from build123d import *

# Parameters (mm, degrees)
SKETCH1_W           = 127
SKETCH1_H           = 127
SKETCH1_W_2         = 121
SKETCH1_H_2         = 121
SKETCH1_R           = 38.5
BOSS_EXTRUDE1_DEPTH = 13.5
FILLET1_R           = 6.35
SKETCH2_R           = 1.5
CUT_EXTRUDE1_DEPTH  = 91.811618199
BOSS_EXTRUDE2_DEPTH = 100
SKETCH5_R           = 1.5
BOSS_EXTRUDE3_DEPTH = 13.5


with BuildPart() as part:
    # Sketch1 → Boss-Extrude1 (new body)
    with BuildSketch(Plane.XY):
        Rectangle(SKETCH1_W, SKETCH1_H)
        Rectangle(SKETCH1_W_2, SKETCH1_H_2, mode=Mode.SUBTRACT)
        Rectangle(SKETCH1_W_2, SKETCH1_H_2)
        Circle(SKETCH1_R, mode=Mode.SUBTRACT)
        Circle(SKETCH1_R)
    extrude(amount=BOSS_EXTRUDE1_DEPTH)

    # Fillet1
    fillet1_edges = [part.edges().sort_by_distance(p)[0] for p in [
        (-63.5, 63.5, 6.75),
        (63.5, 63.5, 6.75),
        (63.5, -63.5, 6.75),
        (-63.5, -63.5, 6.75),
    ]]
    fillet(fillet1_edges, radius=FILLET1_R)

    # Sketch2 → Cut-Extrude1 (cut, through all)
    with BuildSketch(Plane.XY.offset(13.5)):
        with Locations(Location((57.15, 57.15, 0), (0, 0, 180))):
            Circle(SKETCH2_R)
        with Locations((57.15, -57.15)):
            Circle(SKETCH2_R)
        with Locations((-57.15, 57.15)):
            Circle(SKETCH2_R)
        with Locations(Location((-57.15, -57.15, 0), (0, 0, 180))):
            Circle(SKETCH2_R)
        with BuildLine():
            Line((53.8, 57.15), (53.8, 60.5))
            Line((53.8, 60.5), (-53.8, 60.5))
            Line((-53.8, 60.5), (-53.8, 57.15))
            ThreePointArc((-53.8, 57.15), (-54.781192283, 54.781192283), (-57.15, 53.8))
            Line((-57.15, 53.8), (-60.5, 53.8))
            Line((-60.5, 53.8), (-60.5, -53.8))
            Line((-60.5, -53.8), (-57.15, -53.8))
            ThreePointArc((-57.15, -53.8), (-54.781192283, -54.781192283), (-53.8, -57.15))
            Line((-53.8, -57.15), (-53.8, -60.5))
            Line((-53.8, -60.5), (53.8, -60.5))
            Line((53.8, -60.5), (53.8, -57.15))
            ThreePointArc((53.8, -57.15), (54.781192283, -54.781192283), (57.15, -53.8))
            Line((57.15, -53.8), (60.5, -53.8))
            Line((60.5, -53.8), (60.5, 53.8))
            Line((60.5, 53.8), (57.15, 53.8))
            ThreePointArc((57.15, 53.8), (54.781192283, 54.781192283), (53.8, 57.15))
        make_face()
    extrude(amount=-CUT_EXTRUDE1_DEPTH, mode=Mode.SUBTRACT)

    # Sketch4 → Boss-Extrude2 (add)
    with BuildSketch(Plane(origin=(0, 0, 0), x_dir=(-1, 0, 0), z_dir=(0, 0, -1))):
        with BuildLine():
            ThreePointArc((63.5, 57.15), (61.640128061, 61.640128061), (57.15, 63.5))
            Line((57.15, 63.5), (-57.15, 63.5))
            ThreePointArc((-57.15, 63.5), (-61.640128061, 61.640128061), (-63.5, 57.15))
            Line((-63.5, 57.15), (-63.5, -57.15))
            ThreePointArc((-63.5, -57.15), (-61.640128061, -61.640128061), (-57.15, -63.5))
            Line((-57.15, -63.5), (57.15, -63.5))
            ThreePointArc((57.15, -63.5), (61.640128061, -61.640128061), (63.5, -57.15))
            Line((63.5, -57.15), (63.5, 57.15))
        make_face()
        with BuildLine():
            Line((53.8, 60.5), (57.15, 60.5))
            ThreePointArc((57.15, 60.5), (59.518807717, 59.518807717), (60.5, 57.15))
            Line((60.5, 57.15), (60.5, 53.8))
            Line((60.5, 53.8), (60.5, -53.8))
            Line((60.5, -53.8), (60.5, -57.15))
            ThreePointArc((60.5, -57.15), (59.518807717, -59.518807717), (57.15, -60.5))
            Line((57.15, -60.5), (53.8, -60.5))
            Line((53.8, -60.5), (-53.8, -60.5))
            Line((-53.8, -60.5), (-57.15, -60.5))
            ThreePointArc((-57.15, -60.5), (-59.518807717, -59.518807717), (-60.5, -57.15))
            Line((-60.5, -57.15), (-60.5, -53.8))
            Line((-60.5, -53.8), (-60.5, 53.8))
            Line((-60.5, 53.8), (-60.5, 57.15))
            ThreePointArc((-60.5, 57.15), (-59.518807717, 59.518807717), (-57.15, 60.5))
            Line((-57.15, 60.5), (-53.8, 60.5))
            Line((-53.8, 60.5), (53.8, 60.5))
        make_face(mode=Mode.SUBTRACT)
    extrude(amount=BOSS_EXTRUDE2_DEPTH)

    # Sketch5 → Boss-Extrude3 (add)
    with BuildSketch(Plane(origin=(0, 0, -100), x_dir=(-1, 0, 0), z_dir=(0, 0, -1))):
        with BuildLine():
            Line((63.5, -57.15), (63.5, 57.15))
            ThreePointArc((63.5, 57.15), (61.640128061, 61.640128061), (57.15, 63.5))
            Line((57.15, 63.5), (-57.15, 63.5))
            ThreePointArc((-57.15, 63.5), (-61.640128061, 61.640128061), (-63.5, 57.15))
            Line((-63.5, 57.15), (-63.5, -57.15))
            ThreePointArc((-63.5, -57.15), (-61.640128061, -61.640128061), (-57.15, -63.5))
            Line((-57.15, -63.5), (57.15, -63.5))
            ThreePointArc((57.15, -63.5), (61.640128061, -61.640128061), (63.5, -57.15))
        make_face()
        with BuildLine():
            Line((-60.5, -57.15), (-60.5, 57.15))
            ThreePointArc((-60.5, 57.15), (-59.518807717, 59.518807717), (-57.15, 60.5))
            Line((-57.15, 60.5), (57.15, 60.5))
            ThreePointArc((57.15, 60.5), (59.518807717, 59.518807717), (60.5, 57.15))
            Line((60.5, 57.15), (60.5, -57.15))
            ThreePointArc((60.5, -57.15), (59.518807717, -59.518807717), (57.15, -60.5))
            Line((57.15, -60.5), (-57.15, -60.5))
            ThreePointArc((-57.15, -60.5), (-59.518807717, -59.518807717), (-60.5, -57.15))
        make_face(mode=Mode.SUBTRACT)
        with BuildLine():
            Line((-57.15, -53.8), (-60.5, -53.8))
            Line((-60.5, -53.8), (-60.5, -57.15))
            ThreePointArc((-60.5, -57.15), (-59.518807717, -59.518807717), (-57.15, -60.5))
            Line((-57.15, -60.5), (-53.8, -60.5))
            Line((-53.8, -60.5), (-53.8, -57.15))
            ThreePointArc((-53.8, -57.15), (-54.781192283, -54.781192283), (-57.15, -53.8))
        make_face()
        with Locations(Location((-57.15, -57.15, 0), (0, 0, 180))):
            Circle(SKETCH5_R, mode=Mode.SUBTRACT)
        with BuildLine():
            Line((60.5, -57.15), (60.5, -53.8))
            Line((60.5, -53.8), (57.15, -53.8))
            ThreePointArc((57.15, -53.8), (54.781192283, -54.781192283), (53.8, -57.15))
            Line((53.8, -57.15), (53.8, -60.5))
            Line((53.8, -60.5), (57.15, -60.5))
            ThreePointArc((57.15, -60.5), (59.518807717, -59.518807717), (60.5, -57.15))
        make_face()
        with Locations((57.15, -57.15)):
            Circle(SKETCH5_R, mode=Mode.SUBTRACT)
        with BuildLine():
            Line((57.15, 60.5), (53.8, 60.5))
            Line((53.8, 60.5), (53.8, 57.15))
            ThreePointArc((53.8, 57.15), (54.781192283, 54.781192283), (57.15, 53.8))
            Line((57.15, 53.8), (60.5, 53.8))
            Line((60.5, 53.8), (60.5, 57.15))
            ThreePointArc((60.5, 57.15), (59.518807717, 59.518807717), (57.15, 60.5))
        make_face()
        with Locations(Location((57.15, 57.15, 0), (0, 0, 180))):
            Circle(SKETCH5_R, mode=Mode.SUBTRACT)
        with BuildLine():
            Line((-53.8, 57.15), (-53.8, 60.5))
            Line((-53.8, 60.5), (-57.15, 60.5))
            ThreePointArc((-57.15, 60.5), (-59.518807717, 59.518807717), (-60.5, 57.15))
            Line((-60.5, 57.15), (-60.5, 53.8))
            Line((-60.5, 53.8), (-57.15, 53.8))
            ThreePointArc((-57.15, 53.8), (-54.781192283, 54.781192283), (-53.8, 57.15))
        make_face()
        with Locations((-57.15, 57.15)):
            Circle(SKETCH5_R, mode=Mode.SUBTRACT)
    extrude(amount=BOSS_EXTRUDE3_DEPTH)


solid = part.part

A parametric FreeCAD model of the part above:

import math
import FreeCAD as App
import Part
import Sketcher
from FreeCAD import Vector


def edges_at(feature, points):
    """Names of the edges that pass closest to the given points."""
    edges = feature.Shape.Edges
    near = lambda p: min(range(len(edges)), key=lambda i: edges[i].distToShape(Part.Vertex(*p))[0])
    return sorted({f"Edge{near(p) + 1}" for p in points})


def add_polygon(sketch, points):
    """Adds a closed chain of lines whose ends are joined by coincident constraints."""
    first, n = sketch.GeometryCount, len(points)
    for a, b in zip(points, points[1:] + points[:1]):
        sketch.addGeometry(Part.LineSegment(App.Vector(*a, 0), App.Vector(*b, 0)), False)
    for i in range(n):
        sketch.addConstraint(Sketcher.Constraint("Coincident", first + i, 2, first + (i + 1) % n, 1))

doc = App.newDocument("Part")
body = doc.addObject("PartDesign::Body", "Body")

# Sketch on XY plane
sketch1 = doc.addObject("Sketcher::SketchObject", "Sketch")
body.addObject(sketch1)
sketch1.AttachmentSupport = (doc.XY_Plane, [""])
sketch1.MapMode = "FlatFace"
add_polygon(sketch1, [(-63.5, 63.5), (-63.5, -63.5), (63.5, -63.5), (63.5, 63.5)])  # lines 0-3
sketch1.addConstraint([
    Sketcher.Constraint("Vertical", 0),
    Sketcher.Constraint("Horizontal", 1),
    Sketcher.Constraint("Vertical", 2),
    Sketcher.Constraint("Horizontal", 3),
    Sketcher.Constraint("Symmetric", 0, 2, 2, 2, -1, 1),
    Sketcher.Constraint("Equal", 3, 0),
    Sketcher.Constraint("DistanceX", 1, 1, 1, 2, 127.0),
])
pad1 = doc.addObject("PartDesign::Pad", "Pad")
body.addObject(pad1)
pad1.Profile = sketch1
pad1.Length = 13.5
doc.recompute()

fillet = doc.addObject("PartDesign::Fillet", "Fillet")
body.addObject(fillet)
fillet.Base = (pad1, edges_at(pad1, [
    (-63.5, 63.5, 6.75),
    (63.5, 63.5, 6.75),
    (63.5, -63.5, 6.75),
    (-63.5, -63.5, 6.75),
]))
fillet.Radius = 6.35

# Sketch on XY plane
sketch2 = doc.addObject("Sketcher::SketchObject", "Sketch001")
body.addObject(sketch2)
sketch2.AttachmentSupport = (doc.XY_Plane, [""])
sketch2.MapMode = "FlatFace"
sketch2.AttachmentOffset = App.Placement(Vector(0, 0, 13.5), App.Rotation())
sketch2.addGeometry([
    Part.Circle(Vector(57.15, 57.15, 0), Vector(0, 0, 1), 1.5),  # 0
    Part.Circle(Vector(57.15, -57.15, 0), Vector(0, 0, 1), 1.5),  # 1
    Part.Circle(Vector(-57.15, 57.15, 0), Vector(0, 0, 1), 1.5),  # 2
    Part.Circle(Vector(-57.15, -57.15, 0), Vector(0, 0, 1), 1.5),  # 3
    Part.LineSegment(Vector(53.8, 57.15, 0), Vector(53.8, 60.5, 0)),  # 4
    Part.LineSegment(Vector(53.8, 60.5, 0), Vector(-53.8, 60.5, 0)),  # 5
    Part.LineSegment(Vector(-53.8, 60.5, 0), Vector(-53.8, 57.15, 0)),  # 6
    Part.ArcOfCircle(Part.Circle(Vector(-57.15, 57.15, 0), Vector(0, 0, 1), 3.35), math.radians(-90), math.radians(0)),  # 7
    Part.LineSegment(Vector(-57.15, 53.8, 0), Vector(-60.5, 53.8, 0)),  # 8
    Part.LineSegment(Vector(-60.5, 53.8, 0), Vector(-60.5, -53.8, 0)),  # 9
    Part.LineSegment(Vector(-60.5, -53.8, 0), Vector(-57.15, -53.8, 0)),  # 10
    Part.ArcOfCircle(Part.Circle(Vector(-57.15, -57.15, 0), Vector(0, 0, 1), 3.35), math.radians(0), math.radians(90)),  # 11
    Part.LineSegment(Vector(-53.8, -57.15, 0), Vector(-53.8, -60.5, 0)),  # 12
    Part.LineSegment(Vector(-53.8, -60.5, 0), Vector(53.8, -60.5, 0)),  # 13
    Part.LineSegment(Vector(53.8, -60.5, 0), Vector(53.8, -57.15, 0)),  # 14
    Part.ArcOfCircle(Part.Circle(Vector(57.15, -57.15, 0), Vector(0, 0, 1), 3.35), math.radians(90), math.radians(180)),  # 15
    Part.LineSegment(Vector(57.15, -53.8, 0), Vector(60.5, -53.8, 0)),  # 16
    Part.LineSegment(Vector(60.5, -53.8, 0), Vector(60.5, 53.8, 0)),  # 17
    Part.LineSegment(Vector(60.5, 53.8, 0), Vector(57.15, 53.8, 0)),  # 18
    Part.ArcOfCircle(Part.Circle(Vector(57.15, 57.15, 0), Vector(0, 0, 1), 3.35), math.radians(180), math.radians(270)),  # 19
], False)
sketch2.addConstraint([
    Sketcher.Constraint("Coincident", 4, 2, 5, 1),
    Sketcher.Constraint("Coincident", 5, 2, 6, 1),
    Sketcher.Constraint("Tangent", 6, 2, 7, 2),
    Sketcher.Constraint("Tangent", 7, 1, 8, 1),
    Sketcher.Constraint("Coincident", 8, 2, 9, 1),
    Sketcher.Constraint("Coincident", 9, 2, 10, 1),
    Sketcher.Constraint("Tangent", 10, 2, 11, 2),
    Sketcher.Constraint("Tangent", 11, 1, 12, 1),
    Sketcher.Constraint("Coincident", 12, 2, 13, 1),
    Sketcher.Constraint("Coincident", 13, 2, 14, 1),
    Sketcher.Constraint("Tangent", 14, 2, 15, 2),
    Sketcher.Constraint("Tangent", 15, 1, 16, 1),
    Sketcher.Constraint("Coincident", 16, 2, 17, 1),
    Sketcher.Constraint("Coincident", 17, 2, 18, 1),
    Sketcher.Constraint("Tangent", 18, 2, 19, 2),
    Sketcher.Constraint("Tangent", 19, 1, 4, 1),
    Sketcher.Constraint("Vertical", 4),
    Sketcher.Constraint("Horizontal", 5),
    Sketcher.Constraint("Vertical", 6),
    Sketcher.Constraint("Horizontal", 8),
    Sketcher.Constraint("Vertical", 9),
    Sketcher.Constraint("Horizontal", 10),
    Sketcher.Constraint("Vertical", 12),
    Sketcher.Constraint("Horizontal", 13),
    Sketcher.Constraint("Vertical", 14),
    Sketcher.Constraint("Horizontal", 16),
    Sketcher.Constraint("Vertical", 17),
    Sketcher.Constraint("Horizontal", 18),
    Sketcher.Constraint("Coincident", 7, 3, 2, 3),
    Sketcher.Constraint("Coincident", 11, 3, 3, 3),
    Sketcher.Constraint("Coincident", 15, 3, 1, 3),
    Sketcher.Constraint("Coincident", 19, 3, 0, 3),
    Sketcher.Constraint("Equal", 0, 1),
    Sketcher.Constraint("Equal", 1, 2),
    Sketcher.Constraint("Equal", 2, 3),
    Sketcher.Constraint("Equal", 7, 11),
    Sketcher.Constraint("Equal", 11, 15),
    Sketcher.Constraint("Equal", 15, 19),
    Sketcher.Constraint("Symmetric", 1, 3, 2, 3, -1, 1),
    Sketcher.Constraint("Symmetric", 0, 3, 3, 3, -1, 1),
    Sketcher.Constraint("Symmetric", 0, 3, 2, 3, -2),
    Sketcher.Constraint("Equal", 10, 16),
    Sketcher.Constraint("Equal", 18, 4),
    Sketcher.Constraint("Equal", 13, 9),
    Sketcher.Constraint("Equal", 6, 12),
    Sketcher.Constraint("Diameter", 0, 3.0),
    Sketcher.Constraint("Radius", 7, 3.35),
    Sketcher.Constraint("DistanceX", 5, 2, 5, 1, 107.6),
    Sketcher.Constraint("DistanceX", 8, 2, 8, 1, 3.35),
])
pocket1 = doc.addObject("PartDesign::Pocket", "Pocket")
body.addObject(pocket1)
pocket1.Profile = sketch2
pocket1.Type = "ThroughAll"

# Sketch on XY plane
sketch3 = doc.addObject("Sketcher::SketchObject", "Sketch002")
body.addObject(sketch3)
sketch3.AttachmentSupport = (doc.XY_Plane, [""])
sketch3.MapMode = "FlatFace"
sketch3.addGeometry([
    Part.ArcOfCircle(Part.Circle(Vector(-57.15, 57.15, 0), Vector(0, 0, 1), 6.35), math.radians(90), math.radians(180)),  # 0
    Part.LineSegment(Vector(-57.15, 63.5, 0), Vector(57.15, 63.5, 0)),  # 1
    Part.ArcOfCircle(Part.Circle(Vector(57.15, 57.15, 0), Vector(0, 0, 1), 6.35), math.radians(0), math.radians(90)),  # 2
    Part.LineSegment(Vector(63.5, 57.15, 0), Vector(63.5, -57.15, 0)),  # 3
    Part.ArcOfCircle(Part.Circle(Vector(57.15, -57.15, 0), Vector(0, 0, 1), 6.35), math.radians(-90), math.radians(0)),  # 4
    Part.LineSegment(Vector(57.15, -63.5, 0), Vector(-57.15, -63.5, 0)),  # 5
    Part.ArcOfCircle(Part.Circle(Vector(-57.15, -57.15, 0), Vector(0, 0, 1), 6.35), math.radians(180), math.radians(270)),  # 6
    Part.LineSegment(Vector(-63.5, -57.15, 0), Vector(-63.5, 57.15, 0)),  # 7
    Part.LineSegment(Vector(57.15, 60.5, 0), Vector(-57.15, 60.5, 0)),  # 8
    Part.ArcOfCircle(Part.Circle(Vector(-57.15, 57.15, 0), Vector(0, 0, 1), 3.35), math.radians(90), math.radians(180)),  # 9
    Part.LineSegment(Vector(-60.5, 57.15, 0), Vector(-60.5, -57.15, 0)),  # 10
    Part.ArcOfCircle(Part.Circle(Vector(-57.15, -57.15, 0), Vector(0, 0, 1), 3.35), math.radians(180), math.radians(270)),  # 11
    Part.LineSegment(Vector(-57.15, -60.5, 0), Vector(57.15, -60.5, 0)),  # 12
    Part.ArcOfCircle(Part.Circle(Vector(57.15, -57.15, 0), Vector(0, 0, 1), 3.35), math.radians(-90), math.radians(0)),  # 13
    Part.LineSegment(Vector(60.5, -57.15, 0), Vector(60.5, 57.15, 0)),  # 14
    Part.ArcOfCircle(Part.Circle(Vector(57.15, 57.15, 0), Vector(0, 0, 1), 3.35), math.radians(0), math.radians(90)),  # 15
], False)
sketch3.addConstraint([
    Sketcher.Constraint("Tangent", 0, 1, 1, 1),
    Sketcher.Constraint("Tangent", 1, 2, 2, 2),
    Sketcher.Constraint("Tangent", 2, 1, 3, 1),
    Sketcher.Constraint("Tangent", 3, 2, 4, 2),
    Sketcher.Constraint("Tangent", 4, 1, 5, 1),
    Sketcher.Constraint("Tangent", 5, 2, 6, 2),
    Sketcher.Constraint("Tangent", 6, 1, 7, 1),
    Sketcher.Constraint("Tangent", 7, 2, 0, 2),
    Sketcher.Constraint("Tangent", 8, 2, 9, 1),
    Sketcher.Constraint("Tangent", 9, 2, 10, 1),
    Sketcher.Constraint("Tangent", 10, 2, 11, 1),
    Sketcher.Constraint("Tangent", 11, 2, 12, 1),
    Sketcher.Constraint("Tangent", 12, 2, 13, 1),
    Sketcher.Constraint("Tangent", 13, 2, 14, 1),
    Sketcher.Constraint("Tangent", 14, 2, 15, 1),
    Sketcher.Constraint("Tangent", 15, 2, 8, 1),
    Sketcher.Constraint("Horizontal", 1),
    Sketcher.Constraint("Vertical", 3),
    Sketcher.Constraint("Horizontal", 5),
    Sketcher.Constraint("Vertical", 7),
    Sketcher.Constraint("Horizontal", 8),
    Sketcher.Constraint("Vertical", 10),
    Sketcher.Constraint("Horizontal", 12),
    Sketcher.Constraint("Vertical", 14),
    Sketcher.Constraint("Coincident", 9, 3, 0, 3),
    Sketcher.Constraint("Coincident", 11, 3, 6, 3),
    Sketcher.Constraint("Coincident", 13, 3, 4, 3),
    Sketcher.Constraint("Equal", 0, 2),
    Sketcher.Constraint("Equal", 2, 4),
    Sketcher.Constraint("Equal", 4, 6),
    Sketcher.Constraint("Equal", 13, 15),
    Sketcher.Constraint("Symmetric", 0, 3, 4, 3, -1, 1),
    Sketcher.Constraint("Equal", 12, 3),
    Sketcher.Constraint("Radius", 0, 6.35),
    Sketcher.Constraint("Radius", 9, 3.35),
    Sketcher.Constraint("DistanceX", 1, 1, 1, 2, 114.3),
])
pad2 = doc.addObject("PartDesign::Pad", "Pad001")
body.addObject(pad2)
pad2.Profile = sketch3
pad2.Length = 100
pad2.Reversed = True

# Sketch on XY plane
sketch4 = doc.addObject("Sketcher::SketchObject", "Sketch003")
body.addObject(sketch4)
sketch4.AttachmentSupport = (doc.XY_Plane, [""])
sketch4.MapMode = "FlatFace"
sketch4.AttachmentOffset = App.Placement(Vector(0, 0, -100), App.Rotation())
sketch4.addGeometry([
    Part.LineSegment(Vector(-63.5, -57.15, 0), Vector(-63.5, 57.15, 0)),  # 0
    Part.ArcOfCircle(Part.Circle(Vector(-57.15, 57.15, 0), Vector(0, 0, 1), 6.35), math.radians(90), math.radians(180)),  # 1
    Part.LineSegment(Vector(-57.15, 63.5, 0), Vector(57.15, 63.5, 0)),  # 2
    Part.ArcOfCircle(Part.Circle(Vector(57.15, 57.15, 0), Vector(0, 0, 1), 6.35), math.radians(0), math.radians(90)),  # 3
    Part.LineSegment(Vector(63.5, 57.15, 0), Vector(63.5, -57.15, 0)),  # 4
    Part.ArcOfCircle(Part.Circle(Vector(57.15, -57.15, 0), Vector(0, 0, 1), 6.35), math.radians(-90), math.radians(0)),  # 5
    Part.LineSegment(Vector(57.15, -63.5, 0), Vector(-57.15, -63.5, 0)),  # 6
    Part.ArcOfCircle(Part.Circle(Vector(-57.15, -57.15, 0), Vector(0, 0, 1), 6.35), math.radians(180), math.radians(270)),  # 7
    Part.Circle(Vector(57.15, -57.15, 0), Vector(0, 0, 1), 1.5),  # 8
    Part.Circle(Vector(-57.15, -57.15, 0), Vector(0, 0, 1), 1.5),  # 9
    Part.Circle(Vector(57.15, 57.15, 0), Vector(0, 0, 1), 1.5),  # 10
    Part.LineSegment(Vector(-53.8, -60.5, 0), Vector(53.8, -60.5, 0)),  # 11
    Part.LineSegment(Vector(53.8, -60.5, 0), Vector(53.8, -57.15, 0)),  # 12
    Part.ArcOfCircle(Part.Circle(Vector(57.15, -57.15, 0), Vector(0, 0, 1), 3.35), math.radians(90), math.radians(180)),  # 13
    Part.LineSegment(Vector(57.15, -53.8, 0), Vector(60.5, -53.8, 0)),  # 14
    Part.LineSegment(Vector(60.5, -53.8, 0), Vector(60.5, 53.8, 0)),  # 15
    Part.LineSegment(Vector(60.5, 53.8, 0), Vector(57.15, 53.8, 0)),  # 16
    Part.ArcOfCircle(Part.Circle(Vector(57.15, 57.15, 0), Vector(0, 0, 1), 3.35), math.radians(180), math.radians(270)),  # 17
    Part.LineSegment(Vector(53.8, 57.15, 0), Vector(53.8, 60.5, 0)),  # 18
    Part.LineSegment(Vector(53.8, 60.5, 0), Vector(-53.8, 60.5, 0)),  # 19
    Part.LineSegment(Vector(-53.8, 60.5, 0), Vector(-53.8, 57.15, 0)),  # 20
    Part.ArcOfCircle(Part.Circle(Vector(-57.15, 57.15, 0), Vector(0, 0, 1), 3.35), math.radians(-90), math.radians(0)),  # 21
    Part.LineSegment(Vector(-57.15, 53.8, 0), Vector(-60.5, 53.8, 0)),  # 22
    Part.LineSegment(Vector(-60.5, 53.8, 0), Vector(-60.5, -53.8, 0)),  # 23
    Part.LineSegment(Vector(-60.5, -53.8, 0), Vector(-57.15, -53.8, 0)),  # 24
    Part.ArcOfCircle(Part.Circle(Vector(-57.15, -57.15, 0), Vector(0, 0, 1), 3.35), math.radians(0), math.radians(90)),  # 25
    Part.LineSegment(Vector(-53.8, -57.15, 0), Vector(-53.8, -60.5, 0)),  # 26
    Part.Circle(Vector(-57.15, 57.15, 0), Vector(0, 0, 1), 1.5),  # 27
], False)
sketch4.addConstraint([
    Sketcher.Constraint("Tangent", 0, 2, 1, 2),
    Sketcher.Constraint("Tangent", 1, 1, 2, 1),
    Sketcher.Constraint("Tangent", 2, 2, 3, 2),
    Sketcher.Constraint("Tangent", 3, 1, 4, 1),
    Sketcher.Constraint("Tangent", 4, 2, 5, 2),
    Sketcher.Constraint("Tangent", 5, 1, 6, 1),
    Sketcher.Constraint("Tangent", 6, 2, 7, 2),
    Sketcher.Constraint("Tangent", 7, 1, 0, 1),
    Sketcher.Constraint("Coincident", 11, 2, 12, 1),
    Sketcher.Constraint("Tangent", 12, 2, 13, 2),
    Sketcher.Constraint("Tangent", 13, 1, 14, 1),
    Sketcher.Constraint("Coincident", 14, 2, 15, 1),
    Sketcher.Constraint("Coincident", 15, 2, 16, 1),
    Sketcher.Constraint("Tangent", 16, 2, 17, 2),
    Sketcher.Constraint("Tangent", 17, 1, 18, 1),
    Sketcher.Constraint("Coincident", 18, 2, 19, 1),
    Sketcher.Constraint("Coincident", 19, 2, 20, 1),
    Sketcher.Constraint("Tangent", 20, 2, 21, 2),
    Sketcher.Constraint("Tangent", 21, 1, 22, 1),
    Sketcher.Constraint("Coincident", 22, 2, 23, 1),
    Sketcher.Constraint("Coincident", 23, 2, 24, 1),
    Sketcher.Constraint("Tangent", 24, 2, 25, 2),
    Sketcher.Constraint("Tangent", 25, 1, 26, 1),
    Sketcher.Constraint("Coincident", 26, 2, 11, 1),
    Sketcher.Constraint("Vertical", 0),
    Sketcher.Constraint("Horizontal", 2),
    Sketcher.Constraint("Vertical", 4),
    Sketcher.Constraint("Horizontal", 6),
    Sketcher.Constraint("Horizontal", 11),
    Sketcher.Constraint("Vertical", 12),
    Sketcher.Constraint("Horizontal", 14),
    Sketcher.Constraint("Vertical", 15),
    Sketcher.Constraint("Horizontal", 16),
    Sketcher.Constraint("Vertical", 18),
    Sketcher.Constraint("Horizontal", 19),
    Sketcher.Constraint("Vertical", 20),
    Sketcher.Constraint("Horizontal", 22),
    Sketcher.Constraint("Vertical", 23),
    Sketcher.Constraint("Horizontal", 24),
    Sketcher.Constraint("Vertical", 26),
    Sketcher.Constraint("Coincident", 8, 3, 5, 3),
    Sketcher.Constraint("Coincident", 9, 3, 7, 3),
    Sketcher.Constraint("Coincident", 10, 3, 3, 3),
    Sketcher.Constraint("Coincident", 13, 3, 5, 3),
    Sketcher.Constraint("Coincident", 17, 3, 3, 3),
    Sketcher.Constraint("Coincident", 21, 3, 1, 3),
    Sketcher.Constraint("Coincident", 25, 3, 7, 3),
    Sketcher.Constraint("Coincident", 27, 3, 1, 3),
    Sketcher.Constraint("Equal", 1, 3),
    Sketcher.Constraint("Equal", 3, 5),
    Sketcher.Constraint("Equal", 5, 7),
    Sketcher.Constraint("Equal", 8, 9),
    Sketcher.Constraint("Equal", 9, 10),
    Sketcher.Constraint("Equal", 13, 17),
    Sketcher.Constraint("Equal", 17, 21),
    Sketcher.Constraint("Equal", 21, 25),
    Sketcher.Constraint("Equal", 10, 27),
    Sketcher.Constraint("Symmetric", 1, 3, 5, 3, -1, 1),
    Sketcher.Constraint("Equal", 16, 22),
    Sketcher.Constraint("Equal", 6, 0),
    Sketcher.Constraint("Equal", 24, 12),
    Sketcher.Constraint("Equal", 12, 18),
    Sketcher.Constraint("Diameter", 8, 3.0),
    Sketcher.Constraint("Radius", 1, 6.35),
    Sketcher.Constraint("Radius", 13, 3.35),
    Sketcher.Constraint("DistanceX", 2, 1, 2, 2, 114.3),
    Sketcher.Constraint("DistanceY", 5, 1, 11, 2, 3.0),
])
pad3 = doc.addObject("PartDesign::Pad", "Pad002")
body.addObject(pad3)
pad3.Profile = sketch4
pad3.Length = 13.5
pad3.Reversed = True

doc.recompute()
